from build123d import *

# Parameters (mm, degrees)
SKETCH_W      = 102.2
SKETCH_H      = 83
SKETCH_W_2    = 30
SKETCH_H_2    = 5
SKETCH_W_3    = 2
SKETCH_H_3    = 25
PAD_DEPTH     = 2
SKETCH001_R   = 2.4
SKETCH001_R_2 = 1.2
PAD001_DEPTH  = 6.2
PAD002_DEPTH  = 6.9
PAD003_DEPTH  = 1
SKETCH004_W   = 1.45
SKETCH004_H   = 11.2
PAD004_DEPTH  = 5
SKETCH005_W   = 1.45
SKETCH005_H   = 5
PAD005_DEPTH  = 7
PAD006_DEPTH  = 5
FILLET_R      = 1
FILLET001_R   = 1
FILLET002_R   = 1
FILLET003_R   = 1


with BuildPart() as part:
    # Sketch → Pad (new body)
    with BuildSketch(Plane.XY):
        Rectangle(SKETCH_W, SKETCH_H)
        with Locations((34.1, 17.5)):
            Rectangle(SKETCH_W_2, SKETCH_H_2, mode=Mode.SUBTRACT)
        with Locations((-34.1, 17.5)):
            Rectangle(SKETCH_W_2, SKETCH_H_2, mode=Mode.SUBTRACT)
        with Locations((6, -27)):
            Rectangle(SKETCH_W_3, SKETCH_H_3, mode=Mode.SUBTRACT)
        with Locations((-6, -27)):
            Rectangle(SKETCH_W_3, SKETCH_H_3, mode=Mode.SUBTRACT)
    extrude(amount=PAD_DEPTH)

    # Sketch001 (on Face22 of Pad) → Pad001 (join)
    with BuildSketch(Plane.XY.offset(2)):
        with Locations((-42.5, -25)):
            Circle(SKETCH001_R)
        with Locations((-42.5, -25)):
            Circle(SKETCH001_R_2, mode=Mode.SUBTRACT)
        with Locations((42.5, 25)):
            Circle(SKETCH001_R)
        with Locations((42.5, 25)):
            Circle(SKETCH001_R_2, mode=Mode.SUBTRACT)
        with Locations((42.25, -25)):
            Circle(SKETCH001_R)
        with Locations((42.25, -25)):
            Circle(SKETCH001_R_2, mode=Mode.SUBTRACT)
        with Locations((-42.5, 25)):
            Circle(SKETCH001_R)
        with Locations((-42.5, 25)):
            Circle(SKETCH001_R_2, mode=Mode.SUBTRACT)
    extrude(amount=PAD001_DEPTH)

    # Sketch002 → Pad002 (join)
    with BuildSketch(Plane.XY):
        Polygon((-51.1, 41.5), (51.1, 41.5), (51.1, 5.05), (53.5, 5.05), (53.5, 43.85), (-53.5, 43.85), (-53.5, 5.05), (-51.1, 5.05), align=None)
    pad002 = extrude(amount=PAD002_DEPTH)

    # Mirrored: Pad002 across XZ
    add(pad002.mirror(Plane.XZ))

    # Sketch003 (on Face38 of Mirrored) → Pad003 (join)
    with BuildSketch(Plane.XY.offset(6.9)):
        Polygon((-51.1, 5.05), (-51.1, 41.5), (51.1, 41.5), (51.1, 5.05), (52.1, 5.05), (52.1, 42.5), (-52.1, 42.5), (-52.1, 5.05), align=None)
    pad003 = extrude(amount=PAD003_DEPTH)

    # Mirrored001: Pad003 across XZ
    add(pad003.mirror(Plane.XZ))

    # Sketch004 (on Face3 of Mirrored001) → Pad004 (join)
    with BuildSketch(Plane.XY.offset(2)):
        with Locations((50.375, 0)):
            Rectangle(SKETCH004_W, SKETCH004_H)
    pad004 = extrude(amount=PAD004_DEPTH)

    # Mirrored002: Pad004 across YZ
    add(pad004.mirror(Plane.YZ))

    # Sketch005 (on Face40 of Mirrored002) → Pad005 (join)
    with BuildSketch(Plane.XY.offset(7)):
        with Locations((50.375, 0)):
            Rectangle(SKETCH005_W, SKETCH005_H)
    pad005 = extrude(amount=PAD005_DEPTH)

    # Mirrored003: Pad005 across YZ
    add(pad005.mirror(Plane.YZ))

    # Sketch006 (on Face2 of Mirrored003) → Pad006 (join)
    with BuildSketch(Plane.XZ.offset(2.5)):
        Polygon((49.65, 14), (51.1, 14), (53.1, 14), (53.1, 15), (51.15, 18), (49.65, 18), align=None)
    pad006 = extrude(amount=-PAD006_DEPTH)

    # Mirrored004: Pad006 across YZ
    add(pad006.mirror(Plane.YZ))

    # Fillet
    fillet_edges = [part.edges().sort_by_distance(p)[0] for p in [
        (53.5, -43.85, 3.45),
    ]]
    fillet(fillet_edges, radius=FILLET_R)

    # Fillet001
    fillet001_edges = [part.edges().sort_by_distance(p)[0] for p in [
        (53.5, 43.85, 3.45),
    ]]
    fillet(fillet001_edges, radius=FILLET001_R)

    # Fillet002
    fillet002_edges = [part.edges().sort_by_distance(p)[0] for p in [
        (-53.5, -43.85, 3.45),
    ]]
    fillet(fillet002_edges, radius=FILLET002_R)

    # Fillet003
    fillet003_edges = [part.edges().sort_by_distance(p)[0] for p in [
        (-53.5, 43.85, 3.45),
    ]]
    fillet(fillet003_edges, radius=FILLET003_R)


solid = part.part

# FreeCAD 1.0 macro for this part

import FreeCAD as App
import Part
import Sketcher
from FreeCAD import Vector
Q = App.Units.Quantity


def edges_at(feature, points):
    """Names of the edges that pass closest to the given points."""
    edges = feature.Shape.Edges
    near = lambda p: min(range(len(edges)), key=lambda i: edges[i].distToShape(Part.Vertex(*p))[0])
    return sorted({f"Edge{near(p) + 1}" for p in points})


def add_polygon(sketch, points):
    """Adds a closed chain of lines whose ends are joined by coincident constraints."""
    first, n = sketch.GeometryCount, len(points)
    for a, b in zip(points, points[1:] + points[:1]):
        sketch.addGeometry(Part.LineSegment(App.Vector(*a, 0), App.Vector(*b, 0)), False)
    for i in range(n):
        sketch.addConstraint(Sketcher.Constraint("Coincident", first + i, 2, first + (i + 1) % n, 1))

doc = App.newDocument("Part")
body = doc.addObject("PartDesign::Body", "Body")

# Sketch on XY plane
sketch1 = body.newObject("Sketcher::SketchObject", "Sketch")
sketch1.AttachmentSupport = (doc.getObject("XY_Plane"), [""])
sketch1.MapMode = "FlatFace"
add_polygon(sketch1, [(-51.1, 41.5), (-51.1, -41.5), (51.1, -41.5), (51.1, 41.5)])  # lines 0-3
add_polygon(sketch1, [(-5, -39.5), (-7, -39.5), (-7, -14.5), (-5, -14.5)])  # lines 4-7
add_polygon(sketch1, [(7, -39.5), (5, -39.5), (5, -14.5), (7, -14.5)])  # lines 8-11
add_polygon(sketch1, [(-19.1, 15), (-49.1, 15), (-49.1, 20), (-19.1, 20)])  # lines 12-15
add_polygon(sketch1, [(49.1, 15), (19.1, 15), (19.1, 20), (49.1, 20)])  # lines 16-19
sketch1.addConstraint([
    Sketcher.Constraint("Vertical", 0),
    Sketcher.Constraint("Horizontal", 1),
    Sketcher.Constraint("Vertical", 2),
    Sketcher.Constraint("Horizontal", 3),
    Sketcher.Constraint("Horizontal", 4),
    Sketcher.Constraint("Vertical", 5),
    Sketcher.Constraint("Horizontal", 6),
    Sketcher.Constraint("Vertical", 7),
    Sketcher.Constraint("Horizontal", 8),
    Sketcher.Constraint("Vertical", 9),
    Sketcher.Constraint("Horizontal", 10),
    Sketcher.Constraint("Vertical", 11),
    Sketcher.Constraint("Horizontal", 12),
    Sketcher.Constraint("Vertical", 13),
    Sketcher.Constraint("Horizontal", 14),
    Sketcher.Constraint("Vertical", 15),
    Sketcher.Constraint("Horizontal", 16),
    Sketcher.Constraint("Vertical", 17),
    Sketcher.Constraint("Horizontal", 18),
    Sketcher.Constraint("Vertical", 19),
    Sketcher.Constraint("Symmetric", 0, 2, 2, 2, -1, 1),
    Sketcher.Constraint("Symmetric", 7, 2, 8, 2, -2),
    Sketcher.Constraint("Symmetric", 5, 2, 10, 2, -2),
    Sketcher.Constraint("Symmetric", 15, 2, 16, 2, -2),
    Sketcher.Constraint("Symmetric", 13, 2, 18, 2, -2),
    Sketcher.Constraint("DistanceX", 4, 2, 4, 1, Q("2 mm")),
    Sketcher.Constraint("DistanceX", 12, 2, 12, 1, Q("30 mm")),
    Sketcher.Constraint("DistanceY", 0, 2, 0, 1, Q("83 mm")),
    Sketcher.Constraint("DistanceY", 5, 1, 5, 2, Q("25 mm")),
    Sketcher.Constraint("DistanceY", 13, 1, 13, 2, Q("5 mm")),
    Sketcher.Constraint("DistanceX", 1, 1, 1, 2, Q("102.2 mm")),
    Sketcher.Constraint("DistanceX", 4, 2, -1, 1, Q("7 mm")),
    Sketcher.Constraint("DistanceY", -1, 1, 12, 2, Q("15 mm")),
    Sketcher.Constraint("DistanceY", 0, 2, 4, 2, Q("2 mm")),
    Sketcher.Constraint("DistanceX", 3, 2, 12, 2, Q("2 mm")),
])
pad1 = body.newObject("PartDesign::Pad", "Pad")
pad1.Profile = sketch1
pad1.Length = 2

# Sketch on XY plane
sketch2 = body.newObject("Sketcher::SketchObject", "Sketch001")
sketch2.AttachmentSupport = (doc.getObject("XY_Plane"), [""])
sketch2.MapMode = "FlatFace"
sketch2.AttachmentOffset = App.Placement(Vector(0, 0, 2), App.Rotation())
sketch2.addGeometry([
    Part.Circle(Vector(-42.5, -25, 0), Vector(0, 0, 1), 2.4),  # 0
    Part.Circle(Vector(-42.5, -25, 0), Vector(0, 0, 1), 1.2),  # 1
    Part.Circle(Vector(42.5, 25, 0), Vector(0, 0, 1), 2.4),  # 2
    Part.Circle(Vector(42.5, 25, 0), Vector(0, 0, 1), 1.2),  # 3
    Part.Circle(Vector(42.2, -25, 0), Vector(0, 0, 1), 2.4),  # 4
    Part.Circle(Vector(42.2, -25, 0), Vector(0, 0, 1), 1.2),  # 5
    Part.Circle(Vector(-42.5, 25, 0), Vector(0, 0, 1), 2.4),  # 6
    Part.Circle(Vector(-42.5, 25, 0), Vector(0, 0, 1), 1.2),  # 7
], False)
sketch2.addConstraint([
    Sketcher.Constraint("Coincident", 1, 3, 0, 3),
    Sketcher.Constraint("Coincident", 3, 3, 2, 3),
    Sketcher.Constraint("Coincident", 5, 3, 4, 3),
    Sketcher.Constraint("Coincident", 7, 3, 6, 3),
    Sketcher.Constraint("Equal", 0, 2),
    Sketcher.Constraint("Equal", 1, 3),
    Sketcher.Constraint("Equal", 2, 4),
    Sketcher.Constraint("Equal", 3, 5),
    Sketcher.Constraint("Equal", 4, 6),
    Sketcher.Constraint("Equal", 5, 7),
    Sketcher.Constraint("Symmetric", 0, 3, 2, 3, -1, 1),
    Sketcher.Constraint("Symmetric", 2, 3, 6, 3, -2),
    Sketcher.Constraint("Horizontal", 1, 3, 4, 3),
    Sketcher.Constraint("Diameter", 0, Q("4.8 mm")),
    Sketcher.Constraint("Diameter", 1, Q("2.4 mm")),
    Sketcher.Constraint("DistanceY", 0, 3, -1, 1, Q("25 mm")),
    Sketcher.Constraint("DistanceX", 0, 3, 2, 3, Q("85 mm")),
    Sketcher.Constraint("DistanceX", -1, 1, 4, 3, Q("42.25 mm")),
])
pad2 = body.newObject("PartDesign::Pad", "Pad001")
pad2.Profile = sketch2
pad2.Length = 6.2

# Sketch on XY plane
sketch3 = body.newObject("Sketcher::SketchObject", "Sketch002")
sketch3.AttachmentSupport = (doc.getObject("XY_Plane"), [""])
sketch3.MapMode = "FlatFace"
add_polygon(sketch3, [(-51.1, 41.5), (51.1, 41.5), (51.1, 5), (53.5, 5), (53.5, 43.9), (-53.5, 43.9), (-53.5, 5), (-51.1, 5)])  # lines 0-7
sketch3.addConstraint([
    Sketcher.Constraint("Horizontal", 0),
    Sketcher.Constraint("Vertical", 1),
    Sketcher.Constraint("Horizontal", 2),
    Sketcher.Constraint("Vertical", 3),
    Sketcher.Constraint("Horizontal", 4),
    Sketcher.Constraint("Vertical", 5),
    Sketcher.Constraint("Horizontal", 6),
    Sketcher.Constraint("Vertical", 7),
    Sketcher.Constraint("Symmetric", 2, 2, 5, 2, -2),
    Sketcher.Constraint("Equal", 2, 6),
    Sketcher.Constraint("DistanceX", 4, 2, 4, 1, Q("107 mm")),
    Sketcher.Constraint("DistanceX", 0, 1, 0, 2, Q("102.2 mm")),
    Sketcher.Constraint("DistanceY", 3, 1, 3, 2, Q("38.8 mm")),
    Sketcher.Constraint("DistanceY", 1, 2, 1, 1, Q("36.45 mm")),
    Sketcher.Constraint("DistanceY", -1, 1, 0, 2, Q("41.5 mm")),
])
pad3 = body.newObject("PartDesign::Pad", "Pad002")
pad3.Profile = sketch3
pad3.Length = 6.9
doc.recompute()

mirrored = body.newObject("PartDesign::Mirrored", "Mirrored")
mirrored.Originals = [pad3]
mirrored.MirrorPlane = (doc.getObject("XZ_Plane"), [""])
body.Tip = mirrored

# Sketch on XY plane
sketch4 = body.newObject("Sketcher::SketchObject", "Sketch003")
sketch4.AttachmentSupport = (doc.getObject("XY_Plane"), [""])
sketch4.MapMode = "FlatFace"
sketch4.AttachmentOffset = App.Placement(Vector(0, 0, 6.9), App.Rotation())
add_polygon(sketch4, [(-51.1, 5), (-51.1, 41.5), (51.1, 41.5), (51.1, 5), (52.1, 5), (52.1, 42.5), (-52.1, 42.5), (-52.1, 5)])  # lines 0-7
sketch4.addConstraint([
    Sketcher.Constraint("Vertical", 0),
    Sketcher.Constraint("Horizontal", 1),
    Sketcher.Constraint("Vertical", 2),
    Sketcher.Constraint("Horizontal", 3),
    Sketcher.Constraint("Vertical", 4),
    Sketcher.Constraint("Horizontal", 5),
    Sketcher.Constraint("Vertical", 6),
    Sketcher.Constraint("Horizontal", 7),
    Sketcher.Constraint("Symmetric", 3, 2, 6, 2, -2),
    Sketcher.Constraint("Equal", 3, 7),
    Sketcher.Constraint("DistanceX", 3, 1, 3, 2, Q("1 mm")),
    Sketcher.Constraint("DistanceX", 1, 1, 1, 2, Q("102.2 mm")),
    Sketcher.Constraint("DistanceY", 1, 2, 4, 2, Q("1 mm")),
    Sketcher.Constraint("DistanceY", 0, 1, 0, 2, Q("36.45 mm")),
    Sketcher.Constraint("DistanceY", -1, 1, 0, 2, Q("41.5 mm")),
])
pad4 = body.newObject("PartDesign::Pad", "Pad003")
pad4.Profile = sketch4
pad4.Length = 1
doc.recompute()

mirrored2 = body.newObject("PartDesign::Mirrored", "Mirrored001")
mirrored2.Originals = [pad4]
mirrored2.MirrorPlane = (doc.getObject("XZ_Plane"), [""])
body.Tip = mirrored2

# Sketch on XY plane
sketch5 = body.newObject("Sketcher::SketchObject", "Sketch004")
sketch5.AttachmentSupport = (doc.getObject("XY_Plane"), [""])
sketch5.MapMode = "FlatFace"
sketch5.AttachmentOffset = App.Placement(Vector(0, 0, 2), App.Rotation())
add_polygon(sketch5, [(49.6, 5.6), (49.6, -5.6), (51.1, -5.6), (51.1, 5.6)])  # lines 0-3
sketch5.addConstraint([
    Sketcher.Constraint("Vertical", 0),
    Sketcher.Constraint("Horizontal", 1),
    Sketcher.Constraint("Vertical", 2),
    Sketcher.Constraint("Horizontal", 3),
    Sketcher.Constraint("DistanceY", 0, 2, 0, 1, Q("11.2 mm")),
    Sketcher.Constraint("DistanceX", 1, 1, 1, 2, Q("1.45 mm")),
    Sketcher.Constraint("DistanceY", 0, 2, -1, 1, Q("5.6 mm")),
    Sketcher.Constraint("DistanceX", -1, 1, 1, 2, Q("51.1 mm")),
])
pad5 = body.newObject("PartDesign::Pad", "Pad004")
pad5.Profile = sketch5
pad5.Length = 5
doc.recompute()

mirrored3 = body.newObject("PartDesign::Mirrored", "Mirrored002")
mirrored3.Originals = [pad5]
mirrored3.MirrorPlane = (doc.getObject("YZ_Plane"), [""])
body.Tip = mirrored3

# Sketch on XY plane
sketch6 = body.newObject("Sketcher::SketchObject", "Sketch005")
sketch6.AttachmentSupport = (doc.getObject("XY_Plane"), [""])
sketch6.MapMode = "FlatFace"
sketch6.AttachmentOffset = App.Placement(Vector(0, 0, 7), App.Rotation())
add_polygon(sketch6, [(49.6, 2.5), (49.6, -2.5), (51.1, -2.5), (51.1, 2.5)])  # lines 0-3
sketch6.addConstraint([
    Sketcher.Constraint("Vertical", 0),
    Sketcher.Constraint("Horizontal", 1),
    Sketcher.Constraint("Vertical", 2),
    Sketcher.Constraint("Horizontal", 3),
    Sketcher.Constraint("DistanceY", 0, 2, 0, 1, Q("5 mm")),
    Sketcher.Constraint("DistanceX", 1, 1, 1, 2, Q("1.45 mm")),
    Sketcher.Constraint("DistanceY", 0, 2, -1, 1, Q("2.5 mm")),
    Sketcher.Constraint("DistanceX", -1, 1, 1, 2, Q("51.1 mm")),
])
pad6 = body.newObject("PartDesign::Pad", "Pad005")
pad6.Profile = sketch6
pad6.Length = 7
doc.recompute()

mirrored4 = body.newObject("PartDesign::Mirrored", "Mirrored003")
mirrored4.Originals = [pad6]
mirrored4.MirrorPlane = (doc.getObject("YZ_Plane"), [""])
body.Tip = mirrored4

# Sketch on XZ plane
sketch7 = body.newObject("Sketcher::SketchObject", "Sketch006")
sketch7.AttachmentSupport = (doc.getObject("XZ_Plane"), [""])
sketch7.MapMode = "FlatFace"
sketch7.AttachmentOffset = App.Placement(Vector(0, 0, 2.5), App.Rotation())
add_polygon(sketch7, [(49.6, 14), (53.1, 14), (53.1, 15), (51.1, 18), (49.6, 18)])  # lines 0-4
sketch7.addConstraint([
    Sketcher.Constraint("Horizontal", 0),
    Sketcher.Constraint("Vertical", 1),
    Sketcher.Constraint("Horizontal", 3),
    Sketcher.Constraint("Vertical", 4),
    Sketcher.Constraint("DistanceY", 1, 1, 1, 2, Q("1 mm")),
    Sketcher.Constraint("DistanceY", 4, 2, 4, 1, Q("4 mm")),
    Sketcher.Constraint("DistanceX", 3, 2, 3, 1, Q("1.5 mm")),
    Sketcher.Constraint("DistanceY", -1, 1, 0, 2, Q("14 mm")),
    Sketcher.Constraint("DistanceX", 0, 1, 0, 2, Q("3.45 mm")),
    Sketcher.Constraint("DistanceX", -1, 1, 0, 2, Q("53.1 mm")),
])
pad7 = body.newObject("PartDesign::Pad", "Pad006")
pad7.Profile = sketch7
pad7.Length = 5
pad7.Reversed = True
doc.recompute()

mirrored5 = body.newObject("PartDesign::Mirrored", "Mirrored004")
mirrored5.Originals = [pad7]
mirrored5.MirrorPlane = (doc.getObject("YZ_Plane"), [""])
body.Tip = mirrored5
doc.recompute()

fillet = body.newObject("PartDesign::Fillet", "Fillet")
fillet.Base = (mirrored5, edges_at(mirrored5, [(53.5, -43.85, 3.45)]))
fillet.Radius = 1
doc.recompute()

fillet2 = body.newObject("PartDesign::Fillet", "Fillet001")
fillet2.Base = (fillet, edges_at(fillet, [(53.5, 43.85, 3.45)]))
fillet2.Radius = 1
doc.recompute()

fillet3 = body.newObject("PartDesign::Fillet", "Fillet002")
fillet3.Base = (fillet2, edges_at(fillet2, [(-53.5, -43.85, 3.45)]))
fillet3.Radius = 1
doc.recompute()

fillet4 = body.newObject("PartDesign::Fillet", "Fillet003")
fillet4.Base = (fillet3, edges_at(fillet3, [(-53.5, 43.85, 3.45)]))
fillet4.Radius = 1

doc.recompute()
